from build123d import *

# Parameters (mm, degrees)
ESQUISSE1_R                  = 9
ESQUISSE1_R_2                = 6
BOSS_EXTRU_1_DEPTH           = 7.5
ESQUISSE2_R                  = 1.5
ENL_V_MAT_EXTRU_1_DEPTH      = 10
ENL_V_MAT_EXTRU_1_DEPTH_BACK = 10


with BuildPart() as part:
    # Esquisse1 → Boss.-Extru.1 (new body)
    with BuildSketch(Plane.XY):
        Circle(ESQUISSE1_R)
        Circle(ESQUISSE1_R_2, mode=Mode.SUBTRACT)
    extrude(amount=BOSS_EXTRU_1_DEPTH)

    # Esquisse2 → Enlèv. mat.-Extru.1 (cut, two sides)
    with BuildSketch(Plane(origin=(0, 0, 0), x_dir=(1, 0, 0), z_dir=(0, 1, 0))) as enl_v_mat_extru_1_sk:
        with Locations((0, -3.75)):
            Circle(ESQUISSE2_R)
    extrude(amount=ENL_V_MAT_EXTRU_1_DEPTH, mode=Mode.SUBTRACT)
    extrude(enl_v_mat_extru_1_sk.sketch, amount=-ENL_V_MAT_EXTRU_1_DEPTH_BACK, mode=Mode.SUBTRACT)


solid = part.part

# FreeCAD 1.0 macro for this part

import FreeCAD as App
import Part
import Sketcher
from FreeCAD import Vector
Q = App.Units.Quantity

doc = App.newDocument("Part")
body = doc.addObject("PartDesign::Body", "Body")

sketch1 = body.newObject("Sketcher::SketchObject", "Sketch")
sketch1.AttachmentSupport = (doc.getObject("XY_Plane"), [""])
sketch1.MapMode = "FlatFace"
sketch1.addGeometry([
    Part.Circle(Vector(0, 0, 0), Vector(0, 0, 1), 9),
    Part.Circle(Vector(0, 0, 0), Vector(0, 0, 1), 6),
], False)
sketch1.addConstraint([
    Sketcher.Constraint("Coincident", 0, 3, -1, 1),
    Sketcher.Constraint("Coincident", 1, 3, -1, 1),
    Sketcher.Constraint("Diameter", 0, Q("18 mm")),
    Sketcher.Constraint("Diameter", 1, Q("12 mm")),
])
pad1 = body.newObject("PartDesign::Pad", "Pad")
pad1.Profile = sketch1
pad1.Length = 7.5

sketch2 = body.newObject("Sketcher::SketchObject", "Sketch001")
sketch2.AttachmentSupport = (doc.getObject("XZ_Plane"), [""])
sketch2.MapMode = "FlatFace"
sketch2.addGeometry(Part.Circle(Vector(0, 3.75, 0), Vector(0, 0, 1), 1.5), False)
sketch2.addConstraint([
    Sketcher.Constraint("PointOnObject", 0, 3, -2),
    Sketcher.Constraint("Diameter", 0, Q("3 mm")),
    Sketcher.Constraint("DistanceY", -1, 1, 0, 3, Q("3.75 mm")),
])
pocket1 = body.newObject("PartDesign::Pocket", "Pocket")
pocket1.Profile = sketch2
pocket1.Type = "ThroughAll"
pocket1.Midplane = True

doc.recompute()
